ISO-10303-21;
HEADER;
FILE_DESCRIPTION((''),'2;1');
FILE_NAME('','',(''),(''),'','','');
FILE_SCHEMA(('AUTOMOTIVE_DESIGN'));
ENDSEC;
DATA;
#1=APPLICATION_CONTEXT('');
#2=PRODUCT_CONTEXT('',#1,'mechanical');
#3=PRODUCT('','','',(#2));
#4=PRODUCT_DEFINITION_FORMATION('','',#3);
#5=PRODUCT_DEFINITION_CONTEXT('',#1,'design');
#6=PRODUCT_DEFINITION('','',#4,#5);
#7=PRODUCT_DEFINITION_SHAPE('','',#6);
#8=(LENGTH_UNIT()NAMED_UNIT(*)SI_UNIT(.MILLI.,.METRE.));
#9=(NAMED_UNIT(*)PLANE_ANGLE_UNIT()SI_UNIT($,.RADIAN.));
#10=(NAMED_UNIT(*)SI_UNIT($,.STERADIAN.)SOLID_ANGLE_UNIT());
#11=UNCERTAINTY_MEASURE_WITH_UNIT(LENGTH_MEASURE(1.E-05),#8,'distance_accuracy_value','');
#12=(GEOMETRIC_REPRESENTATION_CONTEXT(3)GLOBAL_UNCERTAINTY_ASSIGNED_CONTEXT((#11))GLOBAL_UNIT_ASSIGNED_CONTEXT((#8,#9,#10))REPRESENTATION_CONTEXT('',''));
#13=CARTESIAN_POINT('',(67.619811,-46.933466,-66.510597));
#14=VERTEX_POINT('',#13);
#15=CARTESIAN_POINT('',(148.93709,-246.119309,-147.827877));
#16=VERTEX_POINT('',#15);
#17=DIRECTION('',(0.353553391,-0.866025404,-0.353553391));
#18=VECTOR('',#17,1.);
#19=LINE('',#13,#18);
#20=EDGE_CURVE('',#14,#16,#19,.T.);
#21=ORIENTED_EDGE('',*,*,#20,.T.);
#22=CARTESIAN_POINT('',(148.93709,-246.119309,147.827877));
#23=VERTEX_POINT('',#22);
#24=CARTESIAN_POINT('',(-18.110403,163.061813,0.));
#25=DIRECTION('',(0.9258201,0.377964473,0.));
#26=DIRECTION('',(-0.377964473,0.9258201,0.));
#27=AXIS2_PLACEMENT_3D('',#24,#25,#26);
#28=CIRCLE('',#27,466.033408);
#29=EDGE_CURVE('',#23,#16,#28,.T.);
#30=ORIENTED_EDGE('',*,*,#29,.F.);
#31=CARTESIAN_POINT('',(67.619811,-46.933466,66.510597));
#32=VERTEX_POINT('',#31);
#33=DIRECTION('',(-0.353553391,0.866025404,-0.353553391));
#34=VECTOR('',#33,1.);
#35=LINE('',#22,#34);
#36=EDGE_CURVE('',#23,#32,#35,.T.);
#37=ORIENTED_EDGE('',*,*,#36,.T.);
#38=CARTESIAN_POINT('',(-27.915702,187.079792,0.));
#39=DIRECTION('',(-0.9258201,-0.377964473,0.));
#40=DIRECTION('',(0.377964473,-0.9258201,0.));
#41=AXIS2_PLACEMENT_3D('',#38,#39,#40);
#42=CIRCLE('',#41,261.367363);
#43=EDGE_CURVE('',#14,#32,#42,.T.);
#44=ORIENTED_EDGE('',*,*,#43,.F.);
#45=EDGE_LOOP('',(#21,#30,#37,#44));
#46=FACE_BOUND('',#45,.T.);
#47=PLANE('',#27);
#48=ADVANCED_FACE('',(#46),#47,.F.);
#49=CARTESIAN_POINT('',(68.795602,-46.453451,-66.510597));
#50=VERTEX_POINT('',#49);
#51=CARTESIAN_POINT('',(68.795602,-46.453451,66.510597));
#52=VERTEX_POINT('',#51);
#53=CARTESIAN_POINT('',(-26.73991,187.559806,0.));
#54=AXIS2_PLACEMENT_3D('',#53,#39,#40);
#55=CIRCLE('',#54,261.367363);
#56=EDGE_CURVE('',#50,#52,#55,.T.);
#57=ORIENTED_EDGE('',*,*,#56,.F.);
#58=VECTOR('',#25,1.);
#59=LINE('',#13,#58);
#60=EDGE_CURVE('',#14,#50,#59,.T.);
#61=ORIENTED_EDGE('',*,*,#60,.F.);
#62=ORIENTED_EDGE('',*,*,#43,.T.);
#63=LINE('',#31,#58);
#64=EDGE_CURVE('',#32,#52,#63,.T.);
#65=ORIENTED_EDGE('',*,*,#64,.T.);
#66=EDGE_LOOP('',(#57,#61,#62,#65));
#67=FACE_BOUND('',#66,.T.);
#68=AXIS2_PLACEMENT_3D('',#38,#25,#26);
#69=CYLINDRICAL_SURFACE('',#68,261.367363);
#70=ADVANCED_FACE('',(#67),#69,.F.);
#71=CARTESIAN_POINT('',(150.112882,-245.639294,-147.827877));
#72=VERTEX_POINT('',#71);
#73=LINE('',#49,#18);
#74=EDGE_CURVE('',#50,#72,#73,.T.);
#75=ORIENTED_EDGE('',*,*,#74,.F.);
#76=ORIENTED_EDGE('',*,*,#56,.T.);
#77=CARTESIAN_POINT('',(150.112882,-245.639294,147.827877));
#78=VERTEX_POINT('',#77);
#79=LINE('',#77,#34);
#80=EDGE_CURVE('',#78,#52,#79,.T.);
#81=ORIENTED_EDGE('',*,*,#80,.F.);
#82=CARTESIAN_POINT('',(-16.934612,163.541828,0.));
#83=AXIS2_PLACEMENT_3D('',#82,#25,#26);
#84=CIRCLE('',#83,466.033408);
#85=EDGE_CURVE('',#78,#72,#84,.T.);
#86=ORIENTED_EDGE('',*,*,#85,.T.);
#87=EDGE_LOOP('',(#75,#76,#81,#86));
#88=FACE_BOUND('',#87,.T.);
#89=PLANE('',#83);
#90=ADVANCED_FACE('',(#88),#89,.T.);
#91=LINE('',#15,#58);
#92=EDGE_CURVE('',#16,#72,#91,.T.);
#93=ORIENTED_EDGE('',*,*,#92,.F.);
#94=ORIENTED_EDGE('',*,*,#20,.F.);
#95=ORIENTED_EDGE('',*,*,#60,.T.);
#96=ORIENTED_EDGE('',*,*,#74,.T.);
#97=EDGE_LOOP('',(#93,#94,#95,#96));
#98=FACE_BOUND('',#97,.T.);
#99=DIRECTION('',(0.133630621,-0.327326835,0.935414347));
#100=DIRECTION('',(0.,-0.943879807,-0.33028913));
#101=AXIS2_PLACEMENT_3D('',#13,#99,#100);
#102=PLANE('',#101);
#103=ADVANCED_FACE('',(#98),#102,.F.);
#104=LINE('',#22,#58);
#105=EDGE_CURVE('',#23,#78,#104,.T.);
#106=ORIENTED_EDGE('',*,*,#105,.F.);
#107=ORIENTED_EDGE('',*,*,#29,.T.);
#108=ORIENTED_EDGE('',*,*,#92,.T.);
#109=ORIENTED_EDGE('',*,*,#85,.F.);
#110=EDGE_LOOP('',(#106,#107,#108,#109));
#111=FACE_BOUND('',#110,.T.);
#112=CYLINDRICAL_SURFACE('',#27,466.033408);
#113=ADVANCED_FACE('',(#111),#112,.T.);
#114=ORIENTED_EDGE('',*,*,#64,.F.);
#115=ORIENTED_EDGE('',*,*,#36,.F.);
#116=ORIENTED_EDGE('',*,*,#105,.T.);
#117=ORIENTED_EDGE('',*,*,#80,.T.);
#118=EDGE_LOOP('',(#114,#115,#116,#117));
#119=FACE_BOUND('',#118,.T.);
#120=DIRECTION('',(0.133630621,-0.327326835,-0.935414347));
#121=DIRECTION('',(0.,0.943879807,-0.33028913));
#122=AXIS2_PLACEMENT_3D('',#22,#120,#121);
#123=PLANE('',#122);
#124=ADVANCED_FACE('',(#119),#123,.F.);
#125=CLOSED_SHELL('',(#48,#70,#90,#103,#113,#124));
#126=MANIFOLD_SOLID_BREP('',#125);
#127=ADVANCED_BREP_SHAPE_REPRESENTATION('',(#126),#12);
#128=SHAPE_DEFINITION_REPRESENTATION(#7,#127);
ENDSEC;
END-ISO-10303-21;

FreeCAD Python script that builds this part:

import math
import FreeCAD as App
import Part
import Sketcher
from FreeCAD import Vector
Q = App.Units.Quantity

doc = App.newDocument("Part")
body = doc.addObject("PartDesign::Body", "Body")

sketch1 = body.newObject("Sketcher::SketchObject", "Sketch")
sketch1.Placement = App.Placement(Vector(27.417987, 53.220542, 84.504712), App.Rotation(Vector(-0.267971187, 0.656392675, 0.705223439), Vector(-0.266549405, 0.652910035, -0.70898512), Vector(-0.9258201, -0.377964473, 0), "ZXY"))
sketch1.addGeometry(Part.LineSegment(Vector(-183.012823, 30.960279, 0), Vector(-392.894491, -63.112488, 0)), False)
sketch1.addGeometry(Part.ArcOfCircle(Part.Circle(Vector(24.704599, 143.764618, 0), Vector(0, 0, 1), 466.033408), math.radians(-153.646348), math.radians(-116.658455)), False)
sketch1.addGeometry(Part.LineSegment(Vector(-184.391123, -272.728019, 0), Vector(-89.203159, -63.349769, 0)), False)
sketch1.addGeometry(Part.ArcOfCircle(Part.Circle(Vector(43.097362, 162.059793, 0), Vector(0, 0, 1), 261.367363), math.radians(-149.894685), math.radians(-120.410119)), False)
sketch1.addConstraint(Sketcher.Constraint("Coincident", 0, 2, 1, 1))
sketch1.addConstraint(Sketcher.Constraint("Coincident", 1, 2, 2, 1))
sketch1.addConstraint(Sketcher.Constraint("Coincident", 2, 2, 3, 2))
sketch1.addConstraint(Sketcher.Constraint("Coincident", 3, 1, 0, 1))
sketch1.addConstraint(Sketcher.Constraint("Equal", 0, 2))
sketch1.addConstraint(Sketcher.Constraint("Distance", 0, Q("230 mm")))
sketch1.addConstraint(Sketcher.Constraint("Radius", 1, Q("466.033408 mm")))
sketch1.addConstraint(Sketcher.Constraint("Radius", 3, Q("261.367363 mm")))
sketch1.addConstraint(Sketcher.Constraint("DistanceX", -1, 1, 1, 3, Q("24.704599 mm")))
sketch1.addConstraint(Sketcher.Constraint("DistanceX", 1, 2, 3, 1, Q("1.3783 mm")))
sketch1.addConstraint(Sketcher.Constraint("DistanceX", -1, 1, 3, 3, Q("43.097362 mm")))
sketch1.addConstraint(Sketcher.Constraint("DistanceX", 0, 2, -1, 1, Q("392.894491 mm")))
sketch1.addConstraint(Sketcher.Constraint("DistanceY", 0, 2, -1, 1, Q("63.112488 mm")))
sketch1.addConstraint(Sketcher.Constraint("DistanceX", 2, 2, -1, 1, Q("89.203159 mm")))
pad1 = body.newObject("PartDesign::Pad", "Pad")
pad1.Profile = sketch1
pad1.Length = 1.27
pad1.Midplane = True

doc.recompute()
